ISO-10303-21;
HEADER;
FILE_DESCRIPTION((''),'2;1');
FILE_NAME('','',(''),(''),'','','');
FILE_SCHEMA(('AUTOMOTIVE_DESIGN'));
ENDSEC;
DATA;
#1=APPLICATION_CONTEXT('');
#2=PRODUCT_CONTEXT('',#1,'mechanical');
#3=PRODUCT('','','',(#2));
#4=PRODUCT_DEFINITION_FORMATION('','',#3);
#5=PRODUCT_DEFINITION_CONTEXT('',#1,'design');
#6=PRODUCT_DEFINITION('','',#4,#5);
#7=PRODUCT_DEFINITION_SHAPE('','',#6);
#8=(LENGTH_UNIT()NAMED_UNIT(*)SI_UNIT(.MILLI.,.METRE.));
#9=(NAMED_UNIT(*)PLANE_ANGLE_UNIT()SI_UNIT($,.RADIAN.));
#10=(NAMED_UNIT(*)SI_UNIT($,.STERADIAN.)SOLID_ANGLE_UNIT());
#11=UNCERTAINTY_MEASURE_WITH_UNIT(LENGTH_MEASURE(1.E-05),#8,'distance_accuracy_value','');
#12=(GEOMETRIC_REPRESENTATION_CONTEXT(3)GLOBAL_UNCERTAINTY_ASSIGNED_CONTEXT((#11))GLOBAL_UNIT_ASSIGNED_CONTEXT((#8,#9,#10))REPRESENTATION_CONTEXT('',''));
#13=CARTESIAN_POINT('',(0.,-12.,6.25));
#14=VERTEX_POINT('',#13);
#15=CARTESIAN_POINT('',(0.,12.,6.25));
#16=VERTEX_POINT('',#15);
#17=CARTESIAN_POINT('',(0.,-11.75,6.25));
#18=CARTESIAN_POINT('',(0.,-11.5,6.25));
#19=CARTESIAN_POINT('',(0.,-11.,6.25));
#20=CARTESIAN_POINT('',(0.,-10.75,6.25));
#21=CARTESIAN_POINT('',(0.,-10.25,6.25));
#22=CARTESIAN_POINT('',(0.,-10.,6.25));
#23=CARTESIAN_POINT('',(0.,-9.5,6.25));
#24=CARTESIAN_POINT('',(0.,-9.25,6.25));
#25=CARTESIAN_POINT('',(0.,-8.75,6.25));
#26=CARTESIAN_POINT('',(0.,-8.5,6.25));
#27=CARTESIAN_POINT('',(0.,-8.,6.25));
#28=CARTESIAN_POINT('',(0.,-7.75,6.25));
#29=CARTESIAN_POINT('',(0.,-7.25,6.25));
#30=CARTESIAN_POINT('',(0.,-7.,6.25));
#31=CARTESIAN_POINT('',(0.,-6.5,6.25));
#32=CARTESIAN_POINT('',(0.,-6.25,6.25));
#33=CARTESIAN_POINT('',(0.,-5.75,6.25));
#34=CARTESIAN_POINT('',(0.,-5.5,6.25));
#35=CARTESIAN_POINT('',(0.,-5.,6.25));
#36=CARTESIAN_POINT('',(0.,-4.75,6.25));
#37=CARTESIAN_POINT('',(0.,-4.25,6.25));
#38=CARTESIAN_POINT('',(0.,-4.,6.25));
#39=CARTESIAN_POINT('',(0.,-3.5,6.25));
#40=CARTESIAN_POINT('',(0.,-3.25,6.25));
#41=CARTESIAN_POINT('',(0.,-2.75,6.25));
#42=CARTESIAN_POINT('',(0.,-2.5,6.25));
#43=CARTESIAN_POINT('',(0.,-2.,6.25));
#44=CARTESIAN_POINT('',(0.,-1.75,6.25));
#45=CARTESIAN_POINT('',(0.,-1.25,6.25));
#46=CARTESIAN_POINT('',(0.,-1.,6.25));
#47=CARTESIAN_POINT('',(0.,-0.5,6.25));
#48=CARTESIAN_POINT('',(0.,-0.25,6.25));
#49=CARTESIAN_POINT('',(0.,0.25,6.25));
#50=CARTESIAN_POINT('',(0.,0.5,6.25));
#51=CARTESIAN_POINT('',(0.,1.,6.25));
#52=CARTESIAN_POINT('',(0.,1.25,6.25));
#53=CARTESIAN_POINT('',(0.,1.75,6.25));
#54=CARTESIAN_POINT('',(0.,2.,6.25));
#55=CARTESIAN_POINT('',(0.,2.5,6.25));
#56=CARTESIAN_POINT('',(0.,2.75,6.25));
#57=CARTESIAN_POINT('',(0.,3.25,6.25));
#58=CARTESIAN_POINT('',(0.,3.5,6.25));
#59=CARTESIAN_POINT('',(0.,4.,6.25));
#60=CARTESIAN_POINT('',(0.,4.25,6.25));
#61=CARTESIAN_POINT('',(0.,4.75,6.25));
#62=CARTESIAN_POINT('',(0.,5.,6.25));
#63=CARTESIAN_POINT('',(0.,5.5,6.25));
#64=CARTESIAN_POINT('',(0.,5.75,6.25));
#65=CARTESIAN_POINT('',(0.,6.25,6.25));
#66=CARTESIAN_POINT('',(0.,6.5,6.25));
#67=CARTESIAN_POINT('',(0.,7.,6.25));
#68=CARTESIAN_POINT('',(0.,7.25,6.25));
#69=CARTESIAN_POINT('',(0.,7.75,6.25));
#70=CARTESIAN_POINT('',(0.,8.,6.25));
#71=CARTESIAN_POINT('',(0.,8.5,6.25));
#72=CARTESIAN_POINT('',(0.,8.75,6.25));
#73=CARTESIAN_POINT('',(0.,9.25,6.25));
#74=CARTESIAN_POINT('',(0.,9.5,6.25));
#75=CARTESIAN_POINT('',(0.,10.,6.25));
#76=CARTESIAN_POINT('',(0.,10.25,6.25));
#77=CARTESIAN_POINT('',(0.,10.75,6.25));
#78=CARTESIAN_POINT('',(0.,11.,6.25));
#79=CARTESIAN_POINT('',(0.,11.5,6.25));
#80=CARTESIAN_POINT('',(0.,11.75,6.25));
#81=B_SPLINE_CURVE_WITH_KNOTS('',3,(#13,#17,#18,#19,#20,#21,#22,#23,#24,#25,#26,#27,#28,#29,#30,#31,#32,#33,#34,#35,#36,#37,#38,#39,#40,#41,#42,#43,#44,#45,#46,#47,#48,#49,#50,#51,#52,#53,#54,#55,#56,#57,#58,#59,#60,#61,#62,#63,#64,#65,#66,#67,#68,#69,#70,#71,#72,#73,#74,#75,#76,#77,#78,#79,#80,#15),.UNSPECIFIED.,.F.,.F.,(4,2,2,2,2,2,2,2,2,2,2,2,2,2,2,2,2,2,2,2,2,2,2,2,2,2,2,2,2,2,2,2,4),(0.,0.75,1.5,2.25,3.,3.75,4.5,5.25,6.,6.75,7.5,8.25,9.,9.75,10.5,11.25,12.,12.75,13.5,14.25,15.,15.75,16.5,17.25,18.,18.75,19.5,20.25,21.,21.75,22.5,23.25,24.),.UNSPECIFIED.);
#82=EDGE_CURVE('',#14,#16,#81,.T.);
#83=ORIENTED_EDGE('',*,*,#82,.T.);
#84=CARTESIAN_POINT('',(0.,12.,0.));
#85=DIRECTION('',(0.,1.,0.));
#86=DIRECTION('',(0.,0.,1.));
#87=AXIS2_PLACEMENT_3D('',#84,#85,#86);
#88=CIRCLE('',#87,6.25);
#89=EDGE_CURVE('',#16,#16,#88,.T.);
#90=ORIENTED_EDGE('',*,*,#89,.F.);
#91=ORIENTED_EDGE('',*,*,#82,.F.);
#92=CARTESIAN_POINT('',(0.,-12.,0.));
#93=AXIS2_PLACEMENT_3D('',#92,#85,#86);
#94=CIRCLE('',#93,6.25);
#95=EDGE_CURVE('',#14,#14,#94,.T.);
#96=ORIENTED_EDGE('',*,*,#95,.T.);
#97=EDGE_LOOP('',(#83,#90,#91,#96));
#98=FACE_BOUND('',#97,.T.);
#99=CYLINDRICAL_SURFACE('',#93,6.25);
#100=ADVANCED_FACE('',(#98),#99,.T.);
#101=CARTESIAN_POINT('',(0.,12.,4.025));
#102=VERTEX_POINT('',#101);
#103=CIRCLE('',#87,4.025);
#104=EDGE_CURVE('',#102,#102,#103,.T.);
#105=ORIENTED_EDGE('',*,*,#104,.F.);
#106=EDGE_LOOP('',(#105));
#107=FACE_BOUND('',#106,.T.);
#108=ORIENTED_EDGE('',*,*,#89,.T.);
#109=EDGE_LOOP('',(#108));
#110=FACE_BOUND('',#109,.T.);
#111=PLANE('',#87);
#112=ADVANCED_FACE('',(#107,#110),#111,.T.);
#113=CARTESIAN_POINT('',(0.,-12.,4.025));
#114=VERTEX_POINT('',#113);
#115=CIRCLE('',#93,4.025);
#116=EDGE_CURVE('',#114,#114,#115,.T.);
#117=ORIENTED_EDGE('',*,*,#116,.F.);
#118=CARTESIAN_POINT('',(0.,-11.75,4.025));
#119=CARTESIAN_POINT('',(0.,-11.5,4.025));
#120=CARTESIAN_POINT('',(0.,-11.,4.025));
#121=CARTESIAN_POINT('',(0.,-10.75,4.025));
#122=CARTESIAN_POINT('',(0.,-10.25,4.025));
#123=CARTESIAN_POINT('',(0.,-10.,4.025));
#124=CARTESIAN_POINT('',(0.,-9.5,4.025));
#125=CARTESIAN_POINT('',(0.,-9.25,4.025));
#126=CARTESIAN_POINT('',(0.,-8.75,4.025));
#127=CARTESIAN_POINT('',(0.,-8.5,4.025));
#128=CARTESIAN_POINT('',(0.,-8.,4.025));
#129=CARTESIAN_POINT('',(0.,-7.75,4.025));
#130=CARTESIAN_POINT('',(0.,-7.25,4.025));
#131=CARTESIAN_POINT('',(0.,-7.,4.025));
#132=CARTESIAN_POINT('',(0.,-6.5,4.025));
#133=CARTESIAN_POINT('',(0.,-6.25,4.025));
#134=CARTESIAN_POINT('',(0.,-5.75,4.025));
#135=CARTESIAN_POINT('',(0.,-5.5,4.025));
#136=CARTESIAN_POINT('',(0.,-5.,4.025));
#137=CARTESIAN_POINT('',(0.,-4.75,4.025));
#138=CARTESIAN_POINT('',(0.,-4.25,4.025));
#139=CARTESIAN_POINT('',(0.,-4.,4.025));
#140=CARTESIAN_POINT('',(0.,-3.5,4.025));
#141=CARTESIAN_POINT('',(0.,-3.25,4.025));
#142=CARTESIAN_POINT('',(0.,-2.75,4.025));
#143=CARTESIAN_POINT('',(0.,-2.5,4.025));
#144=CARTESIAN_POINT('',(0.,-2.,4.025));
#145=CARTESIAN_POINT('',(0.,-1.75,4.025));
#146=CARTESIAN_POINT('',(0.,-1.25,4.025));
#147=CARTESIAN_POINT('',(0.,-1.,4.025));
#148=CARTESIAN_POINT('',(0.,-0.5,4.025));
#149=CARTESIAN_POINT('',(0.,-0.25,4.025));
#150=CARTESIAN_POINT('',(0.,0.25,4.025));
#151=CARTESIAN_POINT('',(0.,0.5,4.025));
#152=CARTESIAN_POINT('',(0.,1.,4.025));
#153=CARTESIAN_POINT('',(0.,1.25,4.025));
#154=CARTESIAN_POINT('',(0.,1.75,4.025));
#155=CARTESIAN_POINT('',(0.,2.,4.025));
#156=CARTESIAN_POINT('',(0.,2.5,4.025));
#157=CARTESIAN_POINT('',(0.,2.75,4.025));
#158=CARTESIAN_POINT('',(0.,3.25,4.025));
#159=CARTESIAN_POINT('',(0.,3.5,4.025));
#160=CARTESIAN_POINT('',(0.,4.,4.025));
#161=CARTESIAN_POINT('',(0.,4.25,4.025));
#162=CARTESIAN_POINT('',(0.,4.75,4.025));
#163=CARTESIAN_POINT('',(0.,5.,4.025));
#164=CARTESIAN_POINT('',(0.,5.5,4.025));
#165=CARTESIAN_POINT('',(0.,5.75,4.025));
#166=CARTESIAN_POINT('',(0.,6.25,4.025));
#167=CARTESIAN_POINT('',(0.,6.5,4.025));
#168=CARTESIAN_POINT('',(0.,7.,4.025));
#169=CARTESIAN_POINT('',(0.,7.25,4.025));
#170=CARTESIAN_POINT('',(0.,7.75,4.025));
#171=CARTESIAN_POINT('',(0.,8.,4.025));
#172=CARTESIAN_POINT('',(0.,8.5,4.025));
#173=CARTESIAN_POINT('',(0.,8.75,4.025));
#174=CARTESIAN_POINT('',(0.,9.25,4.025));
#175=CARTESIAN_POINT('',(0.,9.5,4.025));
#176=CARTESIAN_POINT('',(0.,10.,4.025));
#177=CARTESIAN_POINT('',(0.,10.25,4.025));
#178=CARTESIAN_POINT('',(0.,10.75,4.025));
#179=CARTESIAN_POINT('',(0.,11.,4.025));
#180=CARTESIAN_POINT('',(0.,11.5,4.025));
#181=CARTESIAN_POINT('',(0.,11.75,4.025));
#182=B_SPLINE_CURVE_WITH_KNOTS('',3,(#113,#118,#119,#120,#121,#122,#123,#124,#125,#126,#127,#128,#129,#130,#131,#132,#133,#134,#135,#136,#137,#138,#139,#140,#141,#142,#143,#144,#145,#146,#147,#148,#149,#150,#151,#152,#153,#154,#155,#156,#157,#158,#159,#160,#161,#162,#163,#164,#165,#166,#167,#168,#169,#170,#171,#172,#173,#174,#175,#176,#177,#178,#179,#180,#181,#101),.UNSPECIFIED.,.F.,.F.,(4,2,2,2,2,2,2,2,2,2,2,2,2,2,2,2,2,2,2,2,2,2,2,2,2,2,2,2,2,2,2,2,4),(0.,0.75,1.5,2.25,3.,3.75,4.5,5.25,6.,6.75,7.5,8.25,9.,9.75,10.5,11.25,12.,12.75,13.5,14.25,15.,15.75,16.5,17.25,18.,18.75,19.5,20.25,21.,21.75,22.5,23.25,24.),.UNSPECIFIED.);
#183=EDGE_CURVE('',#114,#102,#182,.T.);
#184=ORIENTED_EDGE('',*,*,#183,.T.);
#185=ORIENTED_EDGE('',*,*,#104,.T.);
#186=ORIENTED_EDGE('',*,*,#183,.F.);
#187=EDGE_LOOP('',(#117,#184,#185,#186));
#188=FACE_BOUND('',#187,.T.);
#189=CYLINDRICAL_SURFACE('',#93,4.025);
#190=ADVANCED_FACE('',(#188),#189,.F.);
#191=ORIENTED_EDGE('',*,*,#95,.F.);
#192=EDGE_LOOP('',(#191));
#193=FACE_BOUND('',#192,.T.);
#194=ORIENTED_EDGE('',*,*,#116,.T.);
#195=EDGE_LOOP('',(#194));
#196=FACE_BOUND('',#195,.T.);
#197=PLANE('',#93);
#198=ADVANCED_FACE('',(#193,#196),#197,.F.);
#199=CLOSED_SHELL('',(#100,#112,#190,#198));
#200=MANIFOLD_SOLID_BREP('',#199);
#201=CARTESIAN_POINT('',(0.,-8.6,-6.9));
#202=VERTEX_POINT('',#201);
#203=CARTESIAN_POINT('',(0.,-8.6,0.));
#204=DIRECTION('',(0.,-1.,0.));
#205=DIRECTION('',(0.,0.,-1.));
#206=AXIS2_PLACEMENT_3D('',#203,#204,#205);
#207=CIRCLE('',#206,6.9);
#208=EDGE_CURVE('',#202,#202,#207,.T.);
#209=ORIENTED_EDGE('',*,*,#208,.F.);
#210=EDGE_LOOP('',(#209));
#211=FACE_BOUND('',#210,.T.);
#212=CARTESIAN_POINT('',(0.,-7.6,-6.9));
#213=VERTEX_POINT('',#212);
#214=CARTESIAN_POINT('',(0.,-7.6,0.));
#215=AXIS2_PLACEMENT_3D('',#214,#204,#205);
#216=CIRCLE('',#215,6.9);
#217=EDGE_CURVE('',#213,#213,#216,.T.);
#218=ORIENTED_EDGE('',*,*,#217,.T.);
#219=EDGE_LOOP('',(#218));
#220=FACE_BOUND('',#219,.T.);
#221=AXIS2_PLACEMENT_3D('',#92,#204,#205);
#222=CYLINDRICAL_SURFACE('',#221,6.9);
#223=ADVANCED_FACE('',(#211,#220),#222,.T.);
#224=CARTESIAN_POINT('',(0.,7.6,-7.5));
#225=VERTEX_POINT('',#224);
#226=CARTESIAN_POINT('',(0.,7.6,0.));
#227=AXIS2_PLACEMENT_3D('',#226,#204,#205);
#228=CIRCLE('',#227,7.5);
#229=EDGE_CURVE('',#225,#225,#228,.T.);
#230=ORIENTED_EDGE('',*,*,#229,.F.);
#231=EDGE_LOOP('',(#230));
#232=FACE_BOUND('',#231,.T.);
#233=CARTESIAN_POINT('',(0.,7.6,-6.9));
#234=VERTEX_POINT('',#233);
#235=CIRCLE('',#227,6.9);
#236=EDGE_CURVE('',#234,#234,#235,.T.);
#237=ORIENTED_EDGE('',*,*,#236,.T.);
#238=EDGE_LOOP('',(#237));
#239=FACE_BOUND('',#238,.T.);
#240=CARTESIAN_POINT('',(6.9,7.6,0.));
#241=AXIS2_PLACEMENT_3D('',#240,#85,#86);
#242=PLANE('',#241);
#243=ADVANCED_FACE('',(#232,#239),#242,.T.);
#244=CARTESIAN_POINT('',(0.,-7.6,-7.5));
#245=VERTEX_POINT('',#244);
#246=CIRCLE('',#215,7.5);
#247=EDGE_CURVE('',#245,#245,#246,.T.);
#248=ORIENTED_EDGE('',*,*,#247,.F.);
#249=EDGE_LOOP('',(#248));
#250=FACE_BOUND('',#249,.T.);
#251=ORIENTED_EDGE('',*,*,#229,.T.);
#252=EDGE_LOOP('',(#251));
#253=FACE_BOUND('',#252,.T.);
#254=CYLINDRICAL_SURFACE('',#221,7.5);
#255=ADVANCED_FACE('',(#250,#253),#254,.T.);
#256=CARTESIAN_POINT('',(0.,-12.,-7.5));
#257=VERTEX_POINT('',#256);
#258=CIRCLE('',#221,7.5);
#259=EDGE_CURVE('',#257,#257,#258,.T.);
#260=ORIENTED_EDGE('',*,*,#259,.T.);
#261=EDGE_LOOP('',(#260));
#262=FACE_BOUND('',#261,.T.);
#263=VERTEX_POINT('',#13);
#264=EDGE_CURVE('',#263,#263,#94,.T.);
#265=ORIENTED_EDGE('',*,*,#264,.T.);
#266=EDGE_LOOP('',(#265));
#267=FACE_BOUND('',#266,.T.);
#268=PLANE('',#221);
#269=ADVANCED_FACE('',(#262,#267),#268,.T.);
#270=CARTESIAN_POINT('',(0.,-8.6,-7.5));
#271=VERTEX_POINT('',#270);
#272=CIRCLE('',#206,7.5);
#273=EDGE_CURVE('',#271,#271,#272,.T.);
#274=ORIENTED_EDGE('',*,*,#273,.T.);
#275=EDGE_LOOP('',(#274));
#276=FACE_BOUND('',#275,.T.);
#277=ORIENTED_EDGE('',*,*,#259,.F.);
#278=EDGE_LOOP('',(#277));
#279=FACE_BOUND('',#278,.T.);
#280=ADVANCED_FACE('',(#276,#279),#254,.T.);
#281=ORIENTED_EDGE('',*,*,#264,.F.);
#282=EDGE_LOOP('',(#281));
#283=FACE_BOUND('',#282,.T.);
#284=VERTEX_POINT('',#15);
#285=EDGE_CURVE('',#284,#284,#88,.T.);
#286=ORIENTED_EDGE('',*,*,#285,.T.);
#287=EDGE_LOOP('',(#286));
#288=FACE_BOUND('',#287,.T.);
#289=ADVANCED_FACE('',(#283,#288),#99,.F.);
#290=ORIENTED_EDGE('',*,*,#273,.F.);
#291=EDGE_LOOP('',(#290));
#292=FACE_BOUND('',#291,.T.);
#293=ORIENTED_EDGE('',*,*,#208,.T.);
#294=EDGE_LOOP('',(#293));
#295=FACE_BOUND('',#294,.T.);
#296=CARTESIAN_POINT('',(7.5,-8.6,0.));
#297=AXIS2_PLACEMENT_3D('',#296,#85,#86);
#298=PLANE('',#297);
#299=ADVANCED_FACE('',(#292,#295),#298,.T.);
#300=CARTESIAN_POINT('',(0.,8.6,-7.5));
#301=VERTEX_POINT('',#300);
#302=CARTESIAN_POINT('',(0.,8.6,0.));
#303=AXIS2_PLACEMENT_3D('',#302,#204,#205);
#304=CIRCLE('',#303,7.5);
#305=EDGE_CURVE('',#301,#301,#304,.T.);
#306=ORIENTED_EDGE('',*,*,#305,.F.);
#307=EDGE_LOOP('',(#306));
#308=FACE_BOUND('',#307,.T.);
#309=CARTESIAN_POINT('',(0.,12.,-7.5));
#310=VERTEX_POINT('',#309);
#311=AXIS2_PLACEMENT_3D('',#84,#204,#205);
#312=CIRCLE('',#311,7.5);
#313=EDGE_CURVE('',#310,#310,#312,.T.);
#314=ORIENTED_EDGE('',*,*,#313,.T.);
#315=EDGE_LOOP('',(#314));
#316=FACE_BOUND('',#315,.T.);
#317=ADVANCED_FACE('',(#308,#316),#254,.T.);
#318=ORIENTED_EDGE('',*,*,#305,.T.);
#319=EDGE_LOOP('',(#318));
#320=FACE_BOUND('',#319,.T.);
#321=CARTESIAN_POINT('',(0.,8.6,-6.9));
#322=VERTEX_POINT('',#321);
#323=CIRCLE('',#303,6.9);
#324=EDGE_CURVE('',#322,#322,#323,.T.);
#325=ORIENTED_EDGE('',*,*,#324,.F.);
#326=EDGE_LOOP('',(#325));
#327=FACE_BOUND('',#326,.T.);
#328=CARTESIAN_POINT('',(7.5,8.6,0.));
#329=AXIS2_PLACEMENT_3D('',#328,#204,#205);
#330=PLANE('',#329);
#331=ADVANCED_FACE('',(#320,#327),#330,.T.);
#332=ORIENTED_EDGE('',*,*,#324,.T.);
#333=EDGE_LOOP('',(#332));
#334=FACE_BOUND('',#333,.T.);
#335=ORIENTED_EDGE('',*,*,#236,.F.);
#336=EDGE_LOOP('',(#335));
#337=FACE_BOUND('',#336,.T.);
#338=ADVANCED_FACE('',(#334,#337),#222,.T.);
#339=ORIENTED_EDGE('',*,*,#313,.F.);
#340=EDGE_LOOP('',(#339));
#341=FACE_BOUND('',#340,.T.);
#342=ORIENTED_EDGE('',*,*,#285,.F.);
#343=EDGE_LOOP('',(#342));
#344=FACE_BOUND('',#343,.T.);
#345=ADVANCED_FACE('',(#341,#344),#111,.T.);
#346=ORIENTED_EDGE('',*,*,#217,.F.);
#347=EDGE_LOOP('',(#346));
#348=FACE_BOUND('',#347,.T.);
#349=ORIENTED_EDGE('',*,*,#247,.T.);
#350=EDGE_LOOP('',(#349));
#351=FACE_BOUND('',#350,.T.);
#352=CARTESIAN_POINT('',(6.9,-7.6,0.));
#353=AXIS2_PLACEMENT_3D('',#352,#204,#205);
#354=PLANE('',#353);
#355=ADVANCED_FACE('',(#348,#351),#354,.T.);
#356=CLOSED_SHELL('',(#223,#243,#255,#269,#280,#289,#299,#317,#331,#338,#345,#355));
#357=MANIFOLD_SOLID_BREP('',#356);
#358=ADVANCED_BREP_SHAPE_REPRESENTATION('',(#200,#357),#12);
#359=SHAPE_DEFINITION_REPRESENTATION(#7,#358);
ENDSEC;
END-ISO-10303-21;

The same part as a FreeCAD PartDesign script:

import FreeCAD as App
import Part
import Sketcher

doc = App.newDocument("Part")
body = doc.addObject("PartDesign::Body", "Body")

# Sketch on XY plane
sketch1 = body.newObject("Sketcher::SketchObject", "Sketch")
sketch1.AttachmentSupport = (doc.getObject("XY_Plane"), [""])
sketch1.MapMode = "FlatFace"
sketch1.addGeometry([
    Part.LineSegment(App.Vector(0, 12, 0), App.Vector(0, -12, 0)),  # 0
    Part.LineSegment(App.Vector(0, -12, 0), App.Vector(7.5, -12, 0)),  # 1
    Part.LineSegment(App.Vector(7.5, -12, 0), App.Vector(7.5, -8.6, 0)),  # 2
    Part.LineSegment(App.Vector(7.5, -8.6, 0), App.Vector(6.9, -8.6, 0)),  # 3
    Part.LineSegment(App.Vector(6.9, -8.6, 0), App.Vector(6.9, -7.6, 0)),  # 4
    Part.LineSegment(App.Vector(6.9, -7.6, 0), App.Vector(7.5, -7.6, 0)),  # 5
    Part.LineSegment(App.Vector(7.5, -7.6, 0), App.Vector(7.5, 7.6, 0)),  # 6
    Part.LineSegment(App.Vector(7.5, 7.6, 0), App.Vector(6.9, 7.6, 0)),  # 7
    Part.LineSegment(App.Vector(6.9, 7.6, 0), App.Vector(6.9, 8.6, 0)),  # 8
    Part.LineSegment(App.Vector(6.9, 8.6, 0), App.Vector(7.5, 8.6, 0)),  # 9
    Part.LineSegment(App.Vector(7.5, 8.6, 0), App.Vector(7.5, 12, 0)),  # 10
    Part.LineSegment(App.Vector(7.5, 12, 0), App.Vector(0, 12, 0)),  # 11
], False)
sketch1.addConstraint([
    Sketcher.Constraint("Coincident", 0, 2, 1, 1),
    Sketcher.Constraint("Coincident", 1, 2, 2, 1),
    Sketcher.Constraint("Coincident", 2, 2, 3, 1),
    Sketcher.Constraint("Coincident", 3, 2, 4, 1),
    Sketcher.Constraint("Coincident", 4, 2, 5, 1),
    Sketcher.Constraint("Coincident", 5, 2, 6, 1),
    Sketcher.Constraint("Coincident", 6, 2, 7, 1),
    Sketcher.Constraint("Coincident", 7, 2, 8, 1),
    Sketcher.Constraint("Coincident", 8, 2, 9, 1),
    Sketcher.Constraint("Coincident", 9, 2, 10, 1),
    Sketcher.Constraint("Coincident", 10, 2, 11, 1),
    Sketcher.Constraint("Coincident", 11, 2, 0, 1),
    Sketcher.Constraint("Vertical", 0),
    Sketcher.Constraint("Horizontal", 1),
    Sketcher.Constraint("Vertical", 2),
    Sketcher.Constraint("Horizontal", 3),
    Sketcher.Constraint("Vertical", 4),
    Sketcher.Constraint("Horizontal", 5),
    Sketcher.Constraint("Vertical", 6),
    Sketcher.Constraint("Horizontal", 7),
    Sketcher.Constraint("Vertical", 8),
    Sketcher.Constraint("Horizontal", 9),
    Sketcher.Constraint("Vertical", 10),
    Sketcher.Constraint("Horizontal", 11),
    Sketcher.Constraint("Symmetric", 0, 2, 11, 2, -1, 1),
    Sketcher.Constraint("Symmetric", 4, 2, 7, 2, -1),
    Sketcher.Constraint("Symmetric", 2, 2, 9, 2, -1),
    Sketcher.Constraint("Vertical", 2, 2, 5, 2),
    Sketcher.Constraint("DistanceY", 0, 2, 0, 1, 24.0),
    Sketcher.Constraint("DistanceY", 4, 1, 4, 2, 1.0),
    Sketcher.Constraint("DistanceX", 1, 1, 1, 2, 7.5),
    Sketcher.Constraint("DistanceX", 3, 2, 3, 1, 0.6),
    Sketcher.Constraint("DistanceY", 2, 1, 2, 2, 3.4),
])
revolution = body.newObject("PartDesign::Revolution", "Revolution")
revolution.Profile = sketch1
revolution.ReferenceAxis = (sketch1, ["V_Axis"])
revolution.Angle = 360

# Sketch on XZ plane
sketch2 = body.newObject("Sketcher::SketchObject", "Sketch001")
sketch2.AttachmentSupport = (doc.getObject("XZ_Plane"), [""])
sketch2.MapMode = "FlatFace"
sketch2.AttachmentOffset = App.Placement(App.Vector(0, 0, -12), App.Rotation())
sketch2.addGeometry(Part.Circle(App.Vector(0, 0, 0), App.Vector(0, 0, 1), 6), False)
sketch2.addConstraint([
    Sketcher.Constraint("Coincident", 0, 3, -1, 1),
    Sketcher.Constraint("Diameter", 0, 12.5),
])
pocket1 = body.newObject("PartDesign::Pocket", "Pocket")
pocket1.Profile = sketch2
pocket1.Type = "ThroughAll"
pocket1.Reversed = True
body2 = doc.addObject("PartDesign::Body", "Body001")

# Sketch on XZ plane
sketch3 = body2.newObject("Sketcher::SketchObject", "Sketch002")
sketch3.AttachmentSupport = (doc.getObject("XZ_Plane001"), [""])
sketch3.MapMode = "FlatFace"
sketch3.AttachmentOffset = App.Placement(App.Vector(0, 0, -12), App.Rotation())
sketch3.addGeometry([
    Part.Circle(App.Vector(0, 0, 0), App.Vector(0, 0, 1), 6.2),
    Part.Circle(App.Vector(0, 0, 0), App.Vector(0, 0, 1), 4),
], False)
sketch3.addConstraint([
    Sketcher.Constraint("Coincident", 0, 3, -1, 1),
    Sketcher.Constraint("Coincident", 1, 3, -1, 1),
    Sketcher.Constraint("Diameter", 0, 12.5),
    Sketcher.Constraint("Diameter", 1, 8.05),
])
pad1 = body2.newObject("PartDesign::Pad", "Pad")
pad1.Profile = sketch3
pad1.Length = 24

doc.recompute()
